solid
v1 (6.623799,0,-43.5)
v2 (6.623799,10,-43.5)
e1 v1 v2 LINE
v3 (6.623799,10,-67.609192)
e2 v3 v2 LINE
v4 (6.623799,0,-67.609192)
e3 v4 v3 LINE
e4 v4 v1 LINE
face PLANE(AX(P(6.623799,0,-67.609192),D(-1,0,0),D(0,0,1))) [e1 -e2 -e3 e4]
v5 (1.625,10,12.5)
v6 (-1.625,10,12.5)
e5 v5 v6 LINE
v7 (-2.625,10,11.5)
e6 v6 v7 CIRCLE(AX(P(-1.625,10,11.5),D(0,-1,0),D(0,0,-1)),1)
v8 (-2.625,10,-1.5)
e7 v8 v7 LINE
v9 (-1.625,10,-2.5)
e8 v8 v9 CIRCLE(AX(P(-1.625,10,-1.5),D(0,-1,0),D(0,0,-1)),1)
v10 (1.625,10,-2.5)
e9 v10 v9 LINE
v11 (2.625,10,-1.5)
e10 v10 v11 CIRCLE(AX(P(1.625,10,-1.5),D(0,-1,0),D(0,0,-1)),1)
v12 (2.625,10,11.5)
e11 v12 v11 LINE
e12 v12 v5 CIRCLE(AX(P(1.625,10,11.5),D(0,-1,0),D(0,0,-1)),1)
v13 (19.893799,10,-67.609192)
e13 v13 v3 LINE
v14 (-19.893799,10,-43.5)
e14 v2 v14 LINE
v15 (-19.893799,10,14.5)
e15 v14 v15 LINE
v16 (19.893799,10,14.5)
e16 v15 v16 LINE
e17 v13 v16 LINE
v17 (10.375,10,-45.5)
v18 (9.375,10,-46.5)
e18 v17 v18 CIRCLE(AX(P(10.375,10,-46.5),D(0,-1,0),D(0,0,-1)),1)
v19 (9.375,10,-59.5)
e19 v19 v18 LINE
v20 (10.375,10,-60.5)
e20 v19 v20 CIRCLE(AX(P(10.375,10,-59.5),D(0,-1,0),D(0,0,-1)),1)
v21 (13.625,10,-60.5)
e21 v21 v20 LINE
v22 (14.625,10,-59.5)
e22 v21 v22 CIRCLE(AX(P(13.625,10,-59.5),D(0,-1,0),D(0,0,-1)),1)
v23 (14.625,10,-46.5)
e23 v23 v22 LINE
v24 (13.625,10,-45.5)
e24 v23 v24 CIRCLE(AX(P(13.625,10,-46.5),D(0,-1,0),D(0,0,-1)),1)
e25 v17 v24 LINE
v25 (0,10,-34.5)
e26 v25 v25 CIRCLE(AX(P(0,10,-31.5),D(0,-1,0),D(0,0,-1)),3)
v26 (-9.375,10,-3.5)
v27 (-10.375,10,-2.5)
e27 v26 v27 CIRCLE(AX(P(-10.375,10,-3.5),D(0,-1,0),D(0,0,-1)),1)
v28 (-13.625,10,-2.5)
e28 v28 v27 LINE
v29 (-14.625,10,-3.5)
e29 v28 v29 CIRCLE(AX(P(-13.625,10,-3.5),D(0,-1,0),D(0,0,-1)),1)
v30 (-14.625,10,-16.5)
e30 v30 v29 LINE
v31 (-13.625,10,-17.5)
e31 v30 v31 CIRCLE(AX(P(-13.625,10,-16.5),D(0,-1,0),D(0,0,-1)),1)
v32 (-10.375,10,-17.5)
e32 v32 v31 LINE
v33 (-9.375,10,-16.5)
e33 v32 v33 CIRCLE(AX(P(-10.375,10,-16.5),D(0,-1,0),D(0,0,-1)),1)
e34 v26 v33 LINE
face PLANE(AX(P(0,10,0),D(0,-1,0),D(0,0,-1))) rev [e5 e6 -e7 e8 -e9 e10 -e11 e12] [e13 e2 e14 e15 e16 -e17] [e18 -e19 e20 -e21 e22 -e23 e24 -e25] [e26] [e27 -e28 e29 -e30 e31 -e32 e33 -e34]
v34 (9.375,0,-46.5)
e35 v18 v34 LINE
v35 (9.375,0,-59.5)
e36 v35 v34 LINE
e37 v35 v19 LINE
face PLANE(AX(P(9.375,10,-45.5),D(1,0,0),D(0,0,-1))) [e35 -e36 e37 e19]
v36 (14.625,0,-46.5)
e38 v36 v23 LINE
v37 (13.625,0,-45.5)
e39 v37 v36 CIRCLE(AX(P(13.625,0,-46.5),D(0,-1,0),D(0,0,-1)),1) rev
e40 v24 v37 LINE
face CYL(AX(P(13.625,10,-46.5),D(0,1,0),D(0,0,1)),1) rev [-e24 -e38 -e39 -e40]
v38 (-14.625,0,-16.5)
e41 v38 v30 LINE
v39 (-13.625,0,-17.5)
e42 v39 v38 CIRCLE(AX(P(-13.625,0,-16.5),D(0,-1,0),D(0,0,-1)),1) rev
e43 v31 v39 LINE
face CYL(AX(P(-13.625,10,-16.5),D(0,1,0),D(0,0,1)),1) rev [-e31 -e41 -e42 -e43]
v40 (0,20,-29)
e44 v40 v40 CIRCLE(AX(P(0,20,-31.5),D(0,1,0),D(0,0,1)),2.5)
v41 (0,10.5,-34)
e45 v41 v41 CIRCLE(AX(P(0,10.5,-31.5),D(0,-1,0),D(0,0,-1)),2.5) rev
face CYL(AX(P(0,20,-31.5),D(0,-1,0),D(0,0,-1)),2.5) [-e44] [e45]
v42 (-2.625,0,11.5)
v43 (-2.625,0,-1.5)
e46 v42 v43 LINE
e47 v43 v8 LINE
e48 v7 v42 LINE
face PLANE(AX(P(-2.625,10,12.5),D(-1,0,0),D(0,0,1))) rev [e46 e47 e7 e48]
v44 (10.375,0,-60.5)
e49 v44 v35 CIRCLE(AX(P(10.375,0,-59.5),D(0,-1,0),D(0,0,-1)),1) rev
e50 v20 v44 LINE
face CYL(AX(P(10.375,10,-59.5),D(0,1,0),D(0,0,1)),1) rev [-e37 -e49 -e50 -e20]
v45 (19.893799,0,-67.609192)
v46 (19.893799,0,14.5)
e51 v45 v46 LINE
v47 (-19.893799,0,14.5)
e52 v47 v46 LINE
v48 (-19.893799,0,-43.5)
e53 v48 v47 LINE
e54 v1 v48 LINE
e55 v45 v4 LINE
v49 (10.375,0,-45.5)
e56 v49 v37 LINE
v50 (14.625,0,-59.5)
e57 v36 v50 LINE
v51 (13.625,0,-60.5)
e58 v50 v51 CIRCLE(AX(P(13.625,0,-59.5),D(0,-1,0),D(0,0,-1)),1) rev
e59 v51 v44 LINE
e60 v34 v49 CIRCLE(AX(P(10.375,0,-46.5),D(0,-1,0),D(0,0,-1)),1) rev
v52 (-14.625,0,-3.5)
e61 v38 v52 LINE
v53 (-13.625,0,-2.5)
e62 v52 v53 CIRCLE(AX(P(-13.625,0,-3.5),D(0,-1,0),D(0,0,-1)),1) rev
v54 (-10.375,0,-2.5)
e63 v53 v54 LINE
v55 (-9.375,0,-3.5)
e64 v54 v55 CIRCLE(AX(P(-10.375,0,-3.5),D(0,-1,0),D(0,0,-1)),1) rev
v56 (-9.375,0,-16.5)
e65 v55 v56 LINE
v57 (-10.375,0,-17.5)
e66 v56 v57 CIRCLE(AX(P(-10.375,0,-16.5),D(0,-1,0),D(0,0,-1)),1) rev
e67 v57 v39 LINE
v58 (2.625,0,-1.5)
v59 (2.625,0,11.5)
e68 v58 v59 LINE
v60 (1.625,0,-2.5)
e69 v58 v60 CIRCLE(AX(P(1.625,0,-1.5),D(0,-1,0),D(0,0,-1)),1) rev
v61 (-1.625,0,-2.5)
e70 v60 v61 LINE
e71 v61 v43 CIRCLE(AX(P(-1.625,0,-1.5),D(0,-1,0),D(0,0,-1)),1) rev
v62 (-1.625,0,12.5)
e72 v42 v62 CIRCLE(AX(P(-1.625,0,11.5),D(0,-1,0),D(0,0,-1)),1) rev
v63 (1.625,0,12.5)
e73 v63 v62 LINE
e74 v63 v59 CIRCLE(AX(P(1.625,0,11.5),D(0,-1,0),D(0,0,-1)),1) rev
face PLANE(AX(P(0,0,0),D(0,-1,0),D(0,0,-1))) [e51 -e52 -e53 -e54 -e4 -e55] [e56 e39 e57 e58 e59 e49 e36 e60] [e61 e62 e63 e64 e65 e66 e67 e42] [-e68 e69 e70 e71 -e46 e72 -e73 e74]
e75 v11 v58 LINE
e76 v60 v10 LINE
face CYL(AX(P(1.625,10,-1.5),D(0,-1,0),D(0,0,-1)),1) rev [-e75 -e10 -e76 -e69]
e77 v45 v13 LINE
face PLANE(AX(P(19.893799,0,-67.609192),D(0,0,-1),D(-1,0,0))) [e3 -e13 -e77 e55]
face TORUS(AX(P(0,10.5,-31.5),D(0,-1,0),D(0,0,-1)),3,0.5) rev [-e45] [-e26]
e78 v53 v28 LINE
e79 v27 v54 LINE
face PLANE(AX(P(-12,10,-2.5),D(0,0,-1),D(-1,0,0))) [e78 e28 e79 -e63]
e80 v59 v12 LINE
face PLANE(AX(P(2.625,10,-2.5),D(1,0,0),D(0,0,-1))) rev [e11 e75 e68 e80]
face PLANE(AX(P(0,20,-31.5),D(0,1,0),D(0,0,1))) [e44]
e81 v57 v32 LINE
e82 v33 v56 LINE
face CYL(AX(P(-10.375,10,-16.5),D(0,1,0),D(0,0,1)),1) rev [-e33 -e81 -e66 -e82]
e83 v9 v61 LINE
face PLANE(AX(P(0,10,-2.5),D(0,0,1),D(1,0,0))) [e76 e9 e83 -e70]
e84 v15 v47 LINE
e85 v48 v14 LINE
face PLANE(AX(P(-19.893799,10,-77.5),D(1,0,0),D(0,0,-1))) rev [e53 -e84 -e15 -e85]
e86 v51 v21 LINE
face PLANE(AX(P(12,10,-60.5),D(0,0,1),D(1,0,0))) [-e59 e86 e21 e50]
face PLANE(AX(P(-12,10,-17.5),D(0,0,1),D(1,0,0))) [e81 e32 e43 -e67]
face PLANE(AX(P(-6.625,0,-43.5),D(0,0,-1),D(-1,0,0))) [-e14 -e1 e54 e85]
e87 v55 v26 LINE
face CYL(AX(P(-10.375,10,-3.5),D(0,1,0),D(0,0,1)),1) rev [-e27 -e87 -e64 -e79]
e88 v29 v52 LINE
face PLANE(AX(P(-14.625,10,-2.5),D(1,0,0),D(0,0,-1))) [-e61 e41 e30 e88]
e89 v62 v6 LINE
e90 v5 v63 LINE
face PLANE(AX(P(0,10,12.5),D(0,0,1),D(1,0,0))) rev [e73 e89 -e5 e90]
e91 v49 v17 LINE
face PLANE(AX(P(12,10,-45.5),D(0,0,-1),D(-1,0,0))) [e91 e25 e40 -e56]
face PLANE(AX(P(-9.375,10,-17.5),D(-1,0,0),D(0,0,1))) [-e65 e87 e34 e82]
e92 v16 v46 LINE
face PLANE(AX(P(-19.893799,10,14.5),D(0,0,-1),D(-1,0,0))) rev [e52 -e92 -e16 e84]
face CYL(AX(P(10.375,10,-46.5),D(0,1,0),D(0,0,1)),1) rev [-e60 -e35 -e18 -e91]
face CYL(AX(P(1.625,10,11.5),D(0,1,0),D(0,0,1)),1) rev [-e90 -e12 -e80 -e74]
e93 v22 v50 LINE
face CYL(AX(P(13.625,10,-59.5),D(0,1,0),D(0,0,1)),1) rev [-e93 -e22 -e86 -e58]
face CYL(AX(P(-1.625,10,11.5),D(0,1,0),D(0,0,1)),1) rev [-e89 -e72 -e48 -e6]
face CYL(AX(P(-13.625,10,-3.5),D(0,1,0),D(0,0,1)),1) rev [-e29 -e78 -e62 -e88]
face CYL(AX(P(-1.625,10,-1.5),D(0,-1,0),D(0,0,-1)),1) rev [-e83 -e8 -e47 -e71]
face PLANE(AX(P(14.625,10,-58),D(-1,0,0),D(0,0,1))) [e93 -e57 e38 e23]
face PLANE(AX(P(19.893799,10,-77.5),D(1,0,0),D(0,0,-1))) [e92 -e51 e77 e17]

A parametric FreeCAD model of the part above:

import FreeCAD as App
import Part
import Sketcher


def edges_at(feature, points):
    """Names of the edges that pass closest to the given points."""
    edges = feature.Shape.Edges
    near = lambda p: min(range(len(edges)), key=lambda i: edges[i].distToShape(Part.Vertex(*p))[0])
    return sorted({f"Edge{near(p) + 1}" for p in points})

doc = App.newDocument("Part")
body = doc.addObject("PartDesign::Body", "Body")

# Sketch on XZ plane
sketch1 = body.newObject("Sketcher::SketchObject", "Sketch")
sketch1.AttachmentSupport = (doc.getObject("XZ_Plane"), [""])
sketch1.MapMode = "FlatFace"
sketch1.addGeometry(Part.LineSegment(App.Vector(0, -77.5, 0), App.Vector(-19.9, -77.5, 0)), False)
sketch1.addGeometry(Part.LineSegment(App.Vector(-19.9, -77.5, 0), App.Vector(-19.9, 14.5, 0)), False)
sketch1.addGeometry(Part.LineSegment(App.Vector(-19.9, 14.5, 0), App.Vector(0, 14.5, 0)), False)
sketch1.addGeometry(Part.LineSegment(App.Vector(0, 14.5, 0), App.Vector(0, 12.5, 0)), False)
sketch1.addGeometry(Part.LineSegment(App.Vector(0, 12.5, 0), App.Vector(-2.6, 12.5, 0)), False)
sketch1.addGeometry(Part.LineSegment(App.Vector(-2.6, 12.5, 0), App.Vector(-2.6, -2.5, 0)), False)
sketch1.addGeometry(Part.LineSegment(App.Vector(-2.6, -2.5, 0), App.Vector(0, -2.5, 0)), False)
sketch1.addGeometry(Part.LineSegment(App.Vector(0, -2.5, 0), App.Vector(0, -60.5, 0)), False)
sketch1.addGeometry(Part.LineSegment(App.Vector(0, -60.5, 0), App.Vector(-2.6, -60.5, 0)), False)
sketch1.addGeometry(Part.LineSegment(App.Vector(-2.6, -60.5, 0), App.Vector(-2.6, -75.5, 0)), False)
sketch1.addGeometry(Part.LineSegment(App.Vector(-2.6, -75.5, 0), App.Vector(0, -75.5, 0)), False)
sketch1.addGeometry(Part.LineSegment(App.Vector(0, -75.5, 0), App.Vector(0, -77.5, 0)), False)
sketch1.addConstraint(Sketcher.Constraint("Coincident", 0, 2, 1, 1))
sketch1.addConstraint(Sketcher.Constraint("Coincident", 1, 2, 2, 1))
sketch1.addConstraint(Sketcher.Constraint("Coincident", 2, 2, 3, 1))
sketch1.addConstraint(Sketcher.Constraint("Coincident", 3, 2, 4, 1))
sketch1.addConstraint(Sketcher.Constraint("Coincident", 4, 2, 5, 1))
sketch1.addConstraint(Sketcher.Constraint("Coincident", 5, 2, 6, 1))
sketch1.addConstraint(Sketcher.Constraint("Coincident", 6, 2, 7, 1))
sketch1.addConstraint(Sketcher.Constraint("Coincident", 7, 2, 8, 1))
sketch1.addConstraint(Sketcher.Constraint("Coincident", 8, 2, 9, 1))
sketch1.addConstraint(Sketcher.Constraint("Coincident", 9, 2, 10, 1))
sketch1.addConstraint(Sketcher.Constraint("Coincident", 10, 2, 11, 1))
sketch1.addConstraint(Sketcher.Constraint("Coincident", 11, 2, 0, 1))
sketch1.addConstraint(Sketcher.Constraint("Horizontal", 0))
sketch1.addConstraint(Sketcher.Constraint("Vertical", 1))
sketch1.addConstraint(Sketcher.Constraint("Horizontal", 2))
sketch1.addConstraint(Sketcher.Constraint("Vertical", 3))
sketch1.addConstraint(Sketcher.Constraint("Horizontal", 4))
sketch1.addConstraint(Sketcher.Constraint("Vertical", 5))
sketch1.addConstraint(Sketcher.Constraint("Horizontal", 6))
sketch1.addConstraint(Sketcher.Constraint("Vertical", 7))
sketch1.addConstraint(Sketcher.Constraint("Horizontal", 8))
sketch1.addConstraint(Sketcher.Constraint("Vertical", 9))
sketch1.addConstraint(Sketcher.Constraint("Horizontal", 10))
sketch1.addConstraint(Sketcher.Constraint("Vertical", 11))
sketch1.addConstraint(Sketcher.Constraint("PointOnObject", 2, 2, -2))
sketch1.addConstraint(Sketcher.Constraint("PointOnObject", 6, 2, -2))
sketch1.addConstraint(Sketcher.Constraint("PointOnObject", 10, 2, -2))
sketch1.addConstraint(Sketcher.Constraint("Vertical", 5, 2, 8, 2))
sketch1.addConstraint(Sketcher.Constraint("Equal", 5, 9))
sketch1.addConstraint(Sketcher.Constraint("Equal", 3, 11))
sketch1.addConstraint(Sketcher.Constraint("DistanceY", 1, 1, 1, 2, 92.0))
sketch1.addConstraint(Sketcher.Constraint("DistanceY", 3, 2, 3, 1, 2.0))
sketch1.addConstraint(Sketcher.Constraint("DistanceY", 5, 2, 5, 1, 15.0))
sketch1.addConstraint(Sketcher.Constraint("DistanceY", 0, 2, -1, 1, 77.5))
sketch1.addConstraint(Sketcher.Constraint("DistanceX", 4, 2, 4, 1, 2.625))
sketch1.addConstraint(Sketcher.Constraint("DistanceX", 0, 2, 0, 1, 19.893799))
pad1 = body.newObject("PartDesign::Pad", "Pad")
pad1.Profile = sketch1
pad1.Length = 10
pad1.Reversed = True
doc.recompute()

fillet = body.newObject("PartDesign::Fillet", "Fillet")
fillet.Base = (pad1, edges_at(pad1, [
    (-2.625, 5, 12.5),
    (-2.625, 5, -2.5),
    (-2.625, 5, -60.5),
    (-2.625, 5, -75.5),
]))
fillet.Radius = 1
doc.recompute()

mirrored = body.newObject("PartDesign::Mirrored", "Mirrored")
mirrored.Originals = [pad1]
mirrored.MirrorPlane = (doc.getObject("YZ_Plane"), [""])
body.Tip = mirrored
doc.recompute()

fillet2 = body.newObject("PartDesign::Fillet", "Fillet001")
fillet2.Base = (mirrored, edges_at(mirrored, [
    (2.625, 5, 12.5),
    (2.625, 5, -2.5),
    (2.625, 5, -60.5),
    (2.625, 5, -75.5),
]))
fillet2.Radius = 1

# Sketch on XZ plane
sketch2 = body.newObject("Sketcher::SketchObject", "Sketch001")
sketch2.AttachmentSupport = (doc.getObject("XZ_Plane"), [""])
sketch2.MapMode = "FlatFace"
sketch2.addGeometry(Part.LineSegment(App.Vector(-15, -2, 0), App.Vector(-9, -2, 0)), False)
sketch2.addGeometry(Part.LineSegment(App.Vector(-9, -2, 0), App.Vector(-9, -18, 0)), False)
sketch2.addGeometry(Part.LineSegment(App.Vector(-9, -18, 0), App.Vector(-15, -18, 0)), False)
sketch2.addGeometry(Part.LineSegment(App.Vector(-15, -18, 0), App.Vector(-15, -2, 0)), False)
sketch2.addGeometry(Part.LineSegment(App.Vector(9, -46, 0), App.Vector(15, -46, 0)), False)
sketch2.addGeometry(Part.LineSegment(App.Vector(15, -46, 0), App.Vector(15, -60, 0)), False)
sketch2.addGeometry(Part.LineSegment(App.Vector(15, -60, 0), App.Vector(9, -60, 0)), False)
sketch2.addGeometry(Part.LineSegment(App.Vector(9, -60, 0), App.Vector(9, -46, 0)), False)
sketch2.addConstraint(Sketcher.Constraint("Coincident", 0, 2, 1, 1))
sketch2.addConstraint(Sketcher.Constraint("Coincident", 1, 2, 2, 1))
sketch2.addConstraint(Sketcher.Constraint("Coincident", 2, 2, 3, 1))
sketch2.addConstraint(Sketcher.Constraint("Coincident", 3, 2, 0, 1))
sketch2.addConstraint(Sketcher.Constraint("Coincident", 4, 2, 5, 1))
sketch2.addConstraint(Sketcher.Constraint("Coincident", 5, 2, 6, 1))
sketch2.addConstraint(Sketcher.Constraint("Coincident", 6, 2, 7, 1))
sketch2.addConstraint(Sketcher.Constraint("Coincident", 7, 2, 4, 1))
sketch2.addConstraint(Sketcher.Constraint("Horizontal", 0))
sketch2.addConstraint(Sketcher.Constraint("Vertical", 1))
sketch2.addConstraint(Sketcher.Constraint("Horizontal", 2))
sketch2.addConstraint(Sketcher.Constraint("Vertical", 3))
sketch2.addConstraint(Sketcher.Constraint("Horizontal", 4))
sketch2.addConstraint(Sketcher.Constraint("Vertical", 5))
sketch2.addConstraint(Sketcher.Constraint("Horizontal", 6))
sketch2.addConstraint(Sketcher.Constraint("Vertical", 7))
sketch2.addConstraint(Sketcher.Constraint("Equal", 2, 4))
sketch2.addConstraint(Sketcher.Constraint("Equal", 3, 5))
sketch2.addConstraint(Sketcher.Constraint("DistanceY", 1, 2, 1, 1, 15.0))
sketch2.addConstraint(Sketcher.Constraint("DistanceX", 1, 2, 4, 2, 24.0))
sketch2.addConstraint(Sketcher.Constraint("DistanceY", 4, 2, 1, 2, 28.0))
sketch2.addConstraint(Sketcher.Constraint("DistanceX", 0, 1, 0, 2, 5.25))
sketch2.addConstraint(Sketcher.Constraint("DistanceY", 0, 2, -1, 1, 2.5))
sketch2.addConstraint(Sketcher.Constraint("DistanceX", 0, 2, -1, 1, 9.375))
pocket1 = body.newObject("PartDesign::Pocket", "Pocket")
pocket1.Profile = sketch2
pocket1.Type = "ThroughAll"
doc.recompute()

fillet3 = body.newObject("PartDesign::Fillet", "Fillet002")
fillet3.Base = (pocket1, edges_at(pocket1, [
    (-14.625, 5, -17.5),
    (-14.625, 5, -2.5),
    (-9.375, 5, -2.5),
    (-9.375, 5, -17.5),
    (14.625, 5, -60.5),
    (9.375, 5, -60.5),
    (9.375, 5, -45.5),
    (14.625, 5, -45.5),
]))
fillet3.Radius = 1

# Sketch on XZ plane
sketch3 = body.newObject("Sketcher::SketchObject", "Sketch002")
sketch3.AttachmentSupport = (doc.getObject("XZ_Plane"), [""])
sketch3.MapMode = "FlatFace"
sketch3.AttachmentOffset = App.Placement(App.Vector(0, 0, -10), App.Rotation())
sketch3.addGeometry(Part.Circle(App.Vector(0, -31.5, 0), App.Vector(0, 0, 1), 2.5), False)
sketch3.addConstraint(Sketcher.Constraint("PointOnObject", 0, 3, -2))
sketch3.addConstraint(Sketcher.Constraint("Diameter", 0, 5.0))
sketch3.addConstraint(Sketcher.Constraint("DistanceY", 0, 3, -1, 1, 31.5))
pad2 = body.newObject("PartDesign::Pad", "Pad001")
pad2.Profile = sketch3
pad2.Length = 10
pad2.Reversed = True
doc.recompute()

fillet4 = body.newObject("PartDesign::Fillet", "Fillet003")
fillet4.Base = (pad2, edges_at(pad2, [(0, 10, -29)]))
fillet4.Radius = 0.5

# Sketch on XZ plane
sketch4 = body.newObject("Sketcher::SketchObject", "Sketch003")
sketch4.AttachmentSupport = (doc.getObject("XZ_Plane"), [""])
sketch4.MapMode = "FlatFace"
sketch4.AttachmentOffset = App.Placement(App.Vector(0, 0, -10), App.Rotation())
sketch4.addGeometry(Part.LineSegment(App.Vector(20, -68, 0), App.Vector(20, -78, 0)), False)
sketch4.addGeometry(Part.LineSegment(App.Vector(20, -78, 0), App.Vector(-20, -78, 0)), False)
sketch4.addGeometry(Part.LineSegment(App.Vector(-20, -78, 0), App.Vector(-20, -44, 0)), False)
sketch4.addGeometry(Part.LineSegment(App.Vector(-20, -44, 0), App.Vector(7, -44, 0)), False)
sketch4.addGeometry(Part.LineSegment(App.Vector(7, -44, 0), App.Vector(7, -68, 0)), False)
sketch4.addGeometry(Part.LineSegment(App.Vector(7, -68, 0), App.Vector(20, -68, 0)), False)
sketch4.addConstraint(Sketcher.Constraint("Coincident", 0, 2, 1, 1))
sketch4.addConstraint(Sketcher.Constraint("Coincident", 1, 2, 2, 1))
sketch4.addConstraint(Sketcher.Constraint("Coincident", 2, 2, 3, 1))
sketch4.addConstraint(Sketcher.Constraint("Coincident", 3, 2, 4, 1))
sketch4.addConstraint(Sketcher.Constraint("Coincident", 4, 2, 5, 1))
sketch4.addConstraint(Sketcher.Constraint("Coincident", 5, 2, 0, 1))
sketch4.addConstraint(Sketcher.Constraint("Vertical", 0))
sketch4.addConstraint(Sketcher.Constraint("Horizontal", 1))
sketch4.addConstraint(Sketcher.Constraint("Vertical", 2))
sketch4.addConstraint(Sketcher.Constraint("Horizontal", 3))
sketch4.addConstraint(Sketcher.Constraint("Vertical", 4))
sketch4.addConstraint(Sketcher.Constraint("Horizontal", 5))
sketch4.addConstraint(Sketcher.Constraint("DistanceY", 2, 1, 2, 2, 34.0))
sketch4.addConstraint(Sketcher.Constraint("DistanceX", 5, 1, 5, 2, 13.27))
sketch4.addConstraint(Sketcher.Constraint("DistanceY", 0, 2, -1, 1, 77.5))
sketch4.addConstraint(Sketcher.Constraint("DistanceX", 1, 2, 1, 1, 39.787598))
sketch4.addConstraint(Sketcher.Constraint("DistanceX", -1, 1, 0, 2, 19.893799))
sketch4.addConstraint(Sketcher.Constraint("DistanceY", 0, 2, 0, 1, 9.890808))
pocket2 = body.newObject("PartDesign::Pocket", "Pocket001")
pocket2.Profile = sketch4
pocket2.Length = 10
pocket2.Reversed = True

doc.recompute()
